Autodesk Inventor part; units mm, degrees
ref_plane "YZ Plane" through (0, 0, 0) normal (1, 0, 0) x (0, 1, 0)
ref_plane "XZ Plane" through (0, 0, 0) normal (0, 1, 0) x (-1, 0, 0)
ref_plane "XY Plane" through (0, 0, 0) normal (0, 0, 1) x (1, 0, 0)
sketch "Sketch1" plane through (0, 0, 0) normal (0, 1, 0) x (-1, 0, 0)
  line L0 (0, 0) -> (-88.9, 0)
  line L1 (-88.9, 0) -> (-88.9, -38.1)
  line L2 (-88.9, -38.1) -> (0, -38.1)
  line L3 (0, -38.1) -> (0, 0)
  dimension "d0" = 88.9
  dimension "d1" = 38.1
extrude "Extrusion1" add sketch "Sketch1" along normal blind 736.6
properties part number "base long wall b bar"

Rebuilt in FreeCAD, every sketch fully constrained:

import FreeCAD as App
import Part
import Sketcher

V = App.Vector
Q = App.Units.Quantity

doc = App.newDocument("Part")
body = doc.addObject("PartDesign::Body", "Body")

# Sketch on XZ plane
sketch1 = body.newObject("Sketcher::SketchObject", "Sketch")
sketch1.AttachmentSupport = (doc.getObject("XZ_Plane"), [""])
sketch1.MapMode = "FlatFace"
sketch1.addGeometry([
    Part.LineSegment(V(0, -38, 0), V(0, 0, 0)),
    Part.LineSegment(V(0, 0, 0), V(89, 0, 0)),
    Part.LineSegment(V(89, 0, 0), V(89, -38, 0)),
    Part.LineSegment(V(89, -38, 0), V(0, -38, 0)),
], False)
sketch1.addConstraint([
    Sketcher.Constraint("Coincident", 0, 2, 1, 1),
    Sketcher.Constraint("Coincident", 1, 2, 2, 1),
    Sketcher.Constraint("Coincident", 2, 2, 3, 1),
    Sketcher.Constraint("Coincident", 3, 2, 0, 1),
    Sketcher.Constraint("Vertical", 0),
    Sketcher.Constraint("Horizontal", 1),
    Sketcher.Constraint("Vertical", 2),
    Sketcher.Constraint("Horizontal", 3),
    Sketcher.Constraint("Coincident", 0, 2, -1, 1),
    Sketcher.Constraint("DistanceX", 1, 1, 1, 2, Q("3.5 in")),
    Sketcher.Constraint("DistanceY", 0, 1, 0, 2, Q("1.5 in")),
])
pad1 = body.newObject("PartDesign::Pad", "Pad")
pad1.Profile = sketch1
pad1.Length = Q("29 in")
pad1.Reversed = True

doc.recompute()
